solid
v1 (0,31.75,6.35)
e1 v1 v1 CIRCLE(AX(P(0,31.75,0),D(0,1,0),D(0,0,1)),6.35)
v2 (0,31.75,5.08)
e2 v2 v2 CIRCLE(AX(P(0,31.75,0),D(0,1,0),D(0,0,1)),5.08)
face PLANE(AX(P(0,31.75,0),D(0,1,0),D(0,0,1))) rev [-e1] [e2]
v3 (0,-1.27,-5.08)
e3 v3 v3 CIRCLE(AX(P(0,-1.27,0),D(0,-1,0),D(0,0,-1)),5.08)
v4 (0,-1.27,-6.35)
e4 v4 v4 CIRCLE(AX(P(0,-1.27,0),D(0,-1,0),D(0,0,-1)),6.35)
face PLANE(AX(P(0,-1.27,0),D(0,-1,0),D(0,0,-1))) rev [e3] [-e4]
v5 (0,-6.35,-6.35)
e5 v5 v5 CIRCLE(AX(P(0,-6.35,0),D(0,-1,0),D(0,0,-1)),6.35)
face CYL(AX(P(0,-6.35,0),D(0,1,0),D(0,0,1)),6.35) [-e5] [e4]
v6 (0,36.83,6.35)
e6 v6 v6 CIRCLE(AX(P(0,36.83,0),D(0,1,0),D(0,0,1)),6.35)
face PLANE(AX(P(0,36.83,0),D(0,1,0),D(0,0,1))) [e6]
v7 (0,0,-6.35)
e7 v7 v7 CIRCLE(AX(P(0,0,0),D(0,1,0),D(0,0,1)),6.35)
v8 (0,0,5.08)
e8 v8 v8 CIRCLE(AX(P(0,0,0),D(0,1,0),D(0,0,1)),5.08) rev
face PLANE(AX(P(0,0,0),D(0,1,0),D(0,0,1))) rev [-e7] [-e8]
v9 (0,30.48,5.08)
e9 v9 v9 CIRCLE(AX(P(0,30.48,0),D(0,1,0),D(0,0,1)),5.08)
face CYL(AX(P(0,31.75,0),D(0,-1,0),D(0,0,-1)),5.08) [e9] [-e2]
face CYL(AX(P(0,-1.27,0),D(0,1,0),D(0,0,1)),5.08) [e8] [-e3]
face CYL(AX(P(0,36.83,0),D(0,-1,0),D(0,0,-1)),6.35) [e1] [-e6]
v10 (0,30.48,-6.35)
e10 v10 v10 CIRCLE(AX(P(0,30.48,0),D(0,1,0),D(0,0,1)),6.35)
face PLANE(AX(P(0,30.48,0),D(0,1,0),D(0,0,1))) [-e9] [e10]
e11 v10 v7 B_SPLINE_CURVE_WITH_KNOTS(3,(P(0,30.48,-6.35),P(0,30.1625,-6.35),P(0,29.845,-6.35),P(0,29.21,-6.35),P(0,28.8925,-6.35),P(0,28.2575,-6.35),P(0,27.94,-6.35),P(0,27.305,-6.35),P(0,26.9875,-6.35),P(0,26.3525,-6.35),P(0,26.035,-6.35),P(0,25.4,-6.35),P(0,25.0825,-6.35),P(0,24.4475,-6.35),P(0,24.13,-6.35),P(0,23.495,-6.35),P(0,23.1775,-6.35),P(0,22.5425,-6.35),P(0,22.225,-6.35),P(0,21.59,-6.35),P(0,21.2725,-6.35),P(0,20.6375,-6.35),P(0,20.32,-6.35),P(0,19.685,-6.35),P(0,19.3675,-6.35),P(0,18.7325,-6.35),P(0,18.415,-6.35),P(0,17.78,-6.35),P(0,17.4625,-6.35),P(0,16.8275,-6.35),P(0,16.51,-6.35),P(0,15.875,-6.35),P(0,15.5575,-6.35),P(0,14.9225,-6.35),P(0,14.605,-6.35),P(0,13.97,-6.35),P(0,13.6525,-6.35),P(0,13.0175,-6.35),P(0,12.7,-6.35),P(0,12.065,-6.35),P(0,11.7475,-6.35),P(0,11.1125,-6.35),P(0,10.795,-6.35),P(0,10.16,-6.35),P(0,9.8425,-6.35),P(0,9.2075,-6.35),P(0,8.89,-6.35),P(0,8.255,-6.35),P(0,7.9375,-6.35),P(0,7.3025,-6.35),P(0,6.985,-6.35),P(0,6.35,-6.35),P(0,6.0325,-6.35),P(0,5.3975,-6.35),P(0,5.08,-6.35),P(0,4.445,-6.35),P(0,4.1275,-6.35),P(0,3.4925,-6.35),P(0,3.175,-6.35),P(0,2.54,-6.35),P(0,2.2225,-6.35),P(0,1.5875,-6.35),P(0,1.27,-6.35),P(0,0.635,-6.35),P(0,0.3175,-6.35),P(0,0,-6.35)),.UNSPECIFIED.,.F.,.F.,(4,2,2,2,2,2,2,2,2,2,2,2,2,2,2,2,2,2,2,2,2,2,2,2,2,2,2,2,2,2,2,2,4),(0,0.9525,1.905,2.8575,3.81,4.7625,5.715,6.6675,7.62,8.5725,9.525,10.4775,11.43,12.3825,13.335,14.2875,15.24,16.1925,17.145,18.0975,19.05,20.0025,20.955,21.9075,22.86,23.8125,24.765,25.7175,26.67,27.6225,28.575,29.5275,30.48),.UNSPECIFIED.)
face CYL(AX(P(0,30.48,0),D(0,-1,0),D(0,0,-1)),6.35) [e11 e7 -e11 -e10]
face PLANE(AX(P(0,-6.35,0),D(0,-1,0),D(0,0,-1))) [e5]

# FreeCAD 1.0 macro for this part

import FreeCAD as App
import Part
import Sketcher

V = App.Vector
Q = App.Units.Quantity

doc = App.newDocument("Part")
body = doc.addObject("PartDesign::Body", "Body")

# Sketch on XZ plane
sketch1 = doc.addObject("Sketcher::SketchObject", "Sketch")
body.addObject(sketch1)
sketch1.AttachmentSupport = (doc.XZ_Plane, [""])
sketch1.MapMode = "FlatFace"
sketch1.addGeometry(Part.Circle(V(0, 0, 0), V(0, 0, 1), 6), False)
sketch1.addConstraint([
    Sketcher.Constraint("Coincident", 0, 3, -1, 1),
    Sketcher.Constraint("Diameter", 0, Q("0.5 in")),
])
pad1 = doc.addObject("PartDesign::Pad", "Pad")
body.addObject(pad1)
pad1.Profile = sketch1
pad1.Length = Q("1.2 in")
pad1.Reversed = True

# Sketch on XZ plane
sketch2 = doc.addObject("Sketcher::SketchObject", "Sketch001")
body.addObject(sketch2)
sketch2.AttachmentSupport = (doc.XZ_Plane, [""])
sketch2.MapMode = "FlatFace"
sketch2.AttachmentOffset = App.Placement(V(0, 0, -1.2 * 25.4), App.Rotation())
sketch2.addGeometry(Part.Circle(V(0, 0, 0), V(0, 0, 1), 5), False)
sketch2.addConstraint([
    Sketcher.Constraint("Coincident", 0, 3, -1, 1),
    Sketcher.Constraint("Diameter", 0, Q("0.4 in")),
])
pad2 = doc.addObject("PartDesign::Pad", "Pad001")
body.addObject(pad2)
pad2.Profile = sketch2
pad2.Length = Q("0.05 in")
pad2.Reversed = True

# Sketch on XZ plane
sketch3 = doc.addObject("Sketcher::SketchObject", "Sketch002")
body.addObject(sketch3)
sketch3.AttachmentSupport = (doc.XZ_Plane, [""])
sketch3.MapMode = "FlatFace"
sketch3.AttachmentOffset = App.Placement(V(0, 0, -1.25 * 25.4), App.Rotation())
sketch3.addGeometry(Part.Circle(V(0, 0, 0), V(0, 0, 1), 6), False)
sketch3.addConstraint([
    Sketcher.Constraint("Coincident", 0, 3, -1, 1),
    Sketcher.Constraint("Diameter", 0, Q("0.5 in")),
])
pad3 = doc.addObject("PartDesign::Pad", "Pad002")
body.addObject(pad3)
pad3.Profile = sketch3
pad3.Length = Q("0.2 in")
pad3.Reversed = True

# Sketch on XZ plane
sketch4 = doc.addObject("Sketcher::SketchObject", "Sketch003")
body.addObject(sketch4)
sketch4.AttachmentSupport = (doc.XZ_Plane, [""])
sketch4.MapMode = "FlatFace"
sketch4.AttachmentOffset = App.Placement(V(0, 0, 0.05 * 25.4), App.Rotation())
sketch4.addGeometry(Part.Circle(V(0, 0, 0), V(0, 0, 1), 5), False)
sketch4.addConstraint([
    Sketcher.Constraint("Coincident", 0, 3, -1, 1),
    Sketcher.Constraint("Diameter", 0, Q("0.4 in")),
])
pad4 = doc.addObject("PartDesign::Pad", "Pad003")
body.addObject(pad4)
pad4.Profile = sketch4
pad4.Length = Q("0.05 in")
pad4.Reversed = True

# Sketch on XZ plane
sketch5 = doc.addObject("Sketcher::SketchObject", "Sketch004")
body.addObject(sketch5)
sketch5.AttachmentSupport = (doc.XZ_Plane, [""])
sketch5.MapMode = "FlatFace"
sketch5.AttachmentOffset = App.Placement(V(0, 0, 0.25 * 25.4), App.Rotation())
sketch5.addGeometry(Part.Circle(V(0, 0, 0), V(0, 0, 1), 6), False)
sketch5.addConstraint([
    Sketcher.Constraint("Coincident", 0, 3, -1, 1),
    Sketcher.Constraint("Diameter", 0, Q("0.5 in")),
])
pad5 = doc.addObject("PartDesign::Pad", "Pad004")
body.addObject(pad5)
pad5.Profile = sketch5
pad5.Length = Q("0.2 in")
pad5.Reversed = True

doc.recompute()
